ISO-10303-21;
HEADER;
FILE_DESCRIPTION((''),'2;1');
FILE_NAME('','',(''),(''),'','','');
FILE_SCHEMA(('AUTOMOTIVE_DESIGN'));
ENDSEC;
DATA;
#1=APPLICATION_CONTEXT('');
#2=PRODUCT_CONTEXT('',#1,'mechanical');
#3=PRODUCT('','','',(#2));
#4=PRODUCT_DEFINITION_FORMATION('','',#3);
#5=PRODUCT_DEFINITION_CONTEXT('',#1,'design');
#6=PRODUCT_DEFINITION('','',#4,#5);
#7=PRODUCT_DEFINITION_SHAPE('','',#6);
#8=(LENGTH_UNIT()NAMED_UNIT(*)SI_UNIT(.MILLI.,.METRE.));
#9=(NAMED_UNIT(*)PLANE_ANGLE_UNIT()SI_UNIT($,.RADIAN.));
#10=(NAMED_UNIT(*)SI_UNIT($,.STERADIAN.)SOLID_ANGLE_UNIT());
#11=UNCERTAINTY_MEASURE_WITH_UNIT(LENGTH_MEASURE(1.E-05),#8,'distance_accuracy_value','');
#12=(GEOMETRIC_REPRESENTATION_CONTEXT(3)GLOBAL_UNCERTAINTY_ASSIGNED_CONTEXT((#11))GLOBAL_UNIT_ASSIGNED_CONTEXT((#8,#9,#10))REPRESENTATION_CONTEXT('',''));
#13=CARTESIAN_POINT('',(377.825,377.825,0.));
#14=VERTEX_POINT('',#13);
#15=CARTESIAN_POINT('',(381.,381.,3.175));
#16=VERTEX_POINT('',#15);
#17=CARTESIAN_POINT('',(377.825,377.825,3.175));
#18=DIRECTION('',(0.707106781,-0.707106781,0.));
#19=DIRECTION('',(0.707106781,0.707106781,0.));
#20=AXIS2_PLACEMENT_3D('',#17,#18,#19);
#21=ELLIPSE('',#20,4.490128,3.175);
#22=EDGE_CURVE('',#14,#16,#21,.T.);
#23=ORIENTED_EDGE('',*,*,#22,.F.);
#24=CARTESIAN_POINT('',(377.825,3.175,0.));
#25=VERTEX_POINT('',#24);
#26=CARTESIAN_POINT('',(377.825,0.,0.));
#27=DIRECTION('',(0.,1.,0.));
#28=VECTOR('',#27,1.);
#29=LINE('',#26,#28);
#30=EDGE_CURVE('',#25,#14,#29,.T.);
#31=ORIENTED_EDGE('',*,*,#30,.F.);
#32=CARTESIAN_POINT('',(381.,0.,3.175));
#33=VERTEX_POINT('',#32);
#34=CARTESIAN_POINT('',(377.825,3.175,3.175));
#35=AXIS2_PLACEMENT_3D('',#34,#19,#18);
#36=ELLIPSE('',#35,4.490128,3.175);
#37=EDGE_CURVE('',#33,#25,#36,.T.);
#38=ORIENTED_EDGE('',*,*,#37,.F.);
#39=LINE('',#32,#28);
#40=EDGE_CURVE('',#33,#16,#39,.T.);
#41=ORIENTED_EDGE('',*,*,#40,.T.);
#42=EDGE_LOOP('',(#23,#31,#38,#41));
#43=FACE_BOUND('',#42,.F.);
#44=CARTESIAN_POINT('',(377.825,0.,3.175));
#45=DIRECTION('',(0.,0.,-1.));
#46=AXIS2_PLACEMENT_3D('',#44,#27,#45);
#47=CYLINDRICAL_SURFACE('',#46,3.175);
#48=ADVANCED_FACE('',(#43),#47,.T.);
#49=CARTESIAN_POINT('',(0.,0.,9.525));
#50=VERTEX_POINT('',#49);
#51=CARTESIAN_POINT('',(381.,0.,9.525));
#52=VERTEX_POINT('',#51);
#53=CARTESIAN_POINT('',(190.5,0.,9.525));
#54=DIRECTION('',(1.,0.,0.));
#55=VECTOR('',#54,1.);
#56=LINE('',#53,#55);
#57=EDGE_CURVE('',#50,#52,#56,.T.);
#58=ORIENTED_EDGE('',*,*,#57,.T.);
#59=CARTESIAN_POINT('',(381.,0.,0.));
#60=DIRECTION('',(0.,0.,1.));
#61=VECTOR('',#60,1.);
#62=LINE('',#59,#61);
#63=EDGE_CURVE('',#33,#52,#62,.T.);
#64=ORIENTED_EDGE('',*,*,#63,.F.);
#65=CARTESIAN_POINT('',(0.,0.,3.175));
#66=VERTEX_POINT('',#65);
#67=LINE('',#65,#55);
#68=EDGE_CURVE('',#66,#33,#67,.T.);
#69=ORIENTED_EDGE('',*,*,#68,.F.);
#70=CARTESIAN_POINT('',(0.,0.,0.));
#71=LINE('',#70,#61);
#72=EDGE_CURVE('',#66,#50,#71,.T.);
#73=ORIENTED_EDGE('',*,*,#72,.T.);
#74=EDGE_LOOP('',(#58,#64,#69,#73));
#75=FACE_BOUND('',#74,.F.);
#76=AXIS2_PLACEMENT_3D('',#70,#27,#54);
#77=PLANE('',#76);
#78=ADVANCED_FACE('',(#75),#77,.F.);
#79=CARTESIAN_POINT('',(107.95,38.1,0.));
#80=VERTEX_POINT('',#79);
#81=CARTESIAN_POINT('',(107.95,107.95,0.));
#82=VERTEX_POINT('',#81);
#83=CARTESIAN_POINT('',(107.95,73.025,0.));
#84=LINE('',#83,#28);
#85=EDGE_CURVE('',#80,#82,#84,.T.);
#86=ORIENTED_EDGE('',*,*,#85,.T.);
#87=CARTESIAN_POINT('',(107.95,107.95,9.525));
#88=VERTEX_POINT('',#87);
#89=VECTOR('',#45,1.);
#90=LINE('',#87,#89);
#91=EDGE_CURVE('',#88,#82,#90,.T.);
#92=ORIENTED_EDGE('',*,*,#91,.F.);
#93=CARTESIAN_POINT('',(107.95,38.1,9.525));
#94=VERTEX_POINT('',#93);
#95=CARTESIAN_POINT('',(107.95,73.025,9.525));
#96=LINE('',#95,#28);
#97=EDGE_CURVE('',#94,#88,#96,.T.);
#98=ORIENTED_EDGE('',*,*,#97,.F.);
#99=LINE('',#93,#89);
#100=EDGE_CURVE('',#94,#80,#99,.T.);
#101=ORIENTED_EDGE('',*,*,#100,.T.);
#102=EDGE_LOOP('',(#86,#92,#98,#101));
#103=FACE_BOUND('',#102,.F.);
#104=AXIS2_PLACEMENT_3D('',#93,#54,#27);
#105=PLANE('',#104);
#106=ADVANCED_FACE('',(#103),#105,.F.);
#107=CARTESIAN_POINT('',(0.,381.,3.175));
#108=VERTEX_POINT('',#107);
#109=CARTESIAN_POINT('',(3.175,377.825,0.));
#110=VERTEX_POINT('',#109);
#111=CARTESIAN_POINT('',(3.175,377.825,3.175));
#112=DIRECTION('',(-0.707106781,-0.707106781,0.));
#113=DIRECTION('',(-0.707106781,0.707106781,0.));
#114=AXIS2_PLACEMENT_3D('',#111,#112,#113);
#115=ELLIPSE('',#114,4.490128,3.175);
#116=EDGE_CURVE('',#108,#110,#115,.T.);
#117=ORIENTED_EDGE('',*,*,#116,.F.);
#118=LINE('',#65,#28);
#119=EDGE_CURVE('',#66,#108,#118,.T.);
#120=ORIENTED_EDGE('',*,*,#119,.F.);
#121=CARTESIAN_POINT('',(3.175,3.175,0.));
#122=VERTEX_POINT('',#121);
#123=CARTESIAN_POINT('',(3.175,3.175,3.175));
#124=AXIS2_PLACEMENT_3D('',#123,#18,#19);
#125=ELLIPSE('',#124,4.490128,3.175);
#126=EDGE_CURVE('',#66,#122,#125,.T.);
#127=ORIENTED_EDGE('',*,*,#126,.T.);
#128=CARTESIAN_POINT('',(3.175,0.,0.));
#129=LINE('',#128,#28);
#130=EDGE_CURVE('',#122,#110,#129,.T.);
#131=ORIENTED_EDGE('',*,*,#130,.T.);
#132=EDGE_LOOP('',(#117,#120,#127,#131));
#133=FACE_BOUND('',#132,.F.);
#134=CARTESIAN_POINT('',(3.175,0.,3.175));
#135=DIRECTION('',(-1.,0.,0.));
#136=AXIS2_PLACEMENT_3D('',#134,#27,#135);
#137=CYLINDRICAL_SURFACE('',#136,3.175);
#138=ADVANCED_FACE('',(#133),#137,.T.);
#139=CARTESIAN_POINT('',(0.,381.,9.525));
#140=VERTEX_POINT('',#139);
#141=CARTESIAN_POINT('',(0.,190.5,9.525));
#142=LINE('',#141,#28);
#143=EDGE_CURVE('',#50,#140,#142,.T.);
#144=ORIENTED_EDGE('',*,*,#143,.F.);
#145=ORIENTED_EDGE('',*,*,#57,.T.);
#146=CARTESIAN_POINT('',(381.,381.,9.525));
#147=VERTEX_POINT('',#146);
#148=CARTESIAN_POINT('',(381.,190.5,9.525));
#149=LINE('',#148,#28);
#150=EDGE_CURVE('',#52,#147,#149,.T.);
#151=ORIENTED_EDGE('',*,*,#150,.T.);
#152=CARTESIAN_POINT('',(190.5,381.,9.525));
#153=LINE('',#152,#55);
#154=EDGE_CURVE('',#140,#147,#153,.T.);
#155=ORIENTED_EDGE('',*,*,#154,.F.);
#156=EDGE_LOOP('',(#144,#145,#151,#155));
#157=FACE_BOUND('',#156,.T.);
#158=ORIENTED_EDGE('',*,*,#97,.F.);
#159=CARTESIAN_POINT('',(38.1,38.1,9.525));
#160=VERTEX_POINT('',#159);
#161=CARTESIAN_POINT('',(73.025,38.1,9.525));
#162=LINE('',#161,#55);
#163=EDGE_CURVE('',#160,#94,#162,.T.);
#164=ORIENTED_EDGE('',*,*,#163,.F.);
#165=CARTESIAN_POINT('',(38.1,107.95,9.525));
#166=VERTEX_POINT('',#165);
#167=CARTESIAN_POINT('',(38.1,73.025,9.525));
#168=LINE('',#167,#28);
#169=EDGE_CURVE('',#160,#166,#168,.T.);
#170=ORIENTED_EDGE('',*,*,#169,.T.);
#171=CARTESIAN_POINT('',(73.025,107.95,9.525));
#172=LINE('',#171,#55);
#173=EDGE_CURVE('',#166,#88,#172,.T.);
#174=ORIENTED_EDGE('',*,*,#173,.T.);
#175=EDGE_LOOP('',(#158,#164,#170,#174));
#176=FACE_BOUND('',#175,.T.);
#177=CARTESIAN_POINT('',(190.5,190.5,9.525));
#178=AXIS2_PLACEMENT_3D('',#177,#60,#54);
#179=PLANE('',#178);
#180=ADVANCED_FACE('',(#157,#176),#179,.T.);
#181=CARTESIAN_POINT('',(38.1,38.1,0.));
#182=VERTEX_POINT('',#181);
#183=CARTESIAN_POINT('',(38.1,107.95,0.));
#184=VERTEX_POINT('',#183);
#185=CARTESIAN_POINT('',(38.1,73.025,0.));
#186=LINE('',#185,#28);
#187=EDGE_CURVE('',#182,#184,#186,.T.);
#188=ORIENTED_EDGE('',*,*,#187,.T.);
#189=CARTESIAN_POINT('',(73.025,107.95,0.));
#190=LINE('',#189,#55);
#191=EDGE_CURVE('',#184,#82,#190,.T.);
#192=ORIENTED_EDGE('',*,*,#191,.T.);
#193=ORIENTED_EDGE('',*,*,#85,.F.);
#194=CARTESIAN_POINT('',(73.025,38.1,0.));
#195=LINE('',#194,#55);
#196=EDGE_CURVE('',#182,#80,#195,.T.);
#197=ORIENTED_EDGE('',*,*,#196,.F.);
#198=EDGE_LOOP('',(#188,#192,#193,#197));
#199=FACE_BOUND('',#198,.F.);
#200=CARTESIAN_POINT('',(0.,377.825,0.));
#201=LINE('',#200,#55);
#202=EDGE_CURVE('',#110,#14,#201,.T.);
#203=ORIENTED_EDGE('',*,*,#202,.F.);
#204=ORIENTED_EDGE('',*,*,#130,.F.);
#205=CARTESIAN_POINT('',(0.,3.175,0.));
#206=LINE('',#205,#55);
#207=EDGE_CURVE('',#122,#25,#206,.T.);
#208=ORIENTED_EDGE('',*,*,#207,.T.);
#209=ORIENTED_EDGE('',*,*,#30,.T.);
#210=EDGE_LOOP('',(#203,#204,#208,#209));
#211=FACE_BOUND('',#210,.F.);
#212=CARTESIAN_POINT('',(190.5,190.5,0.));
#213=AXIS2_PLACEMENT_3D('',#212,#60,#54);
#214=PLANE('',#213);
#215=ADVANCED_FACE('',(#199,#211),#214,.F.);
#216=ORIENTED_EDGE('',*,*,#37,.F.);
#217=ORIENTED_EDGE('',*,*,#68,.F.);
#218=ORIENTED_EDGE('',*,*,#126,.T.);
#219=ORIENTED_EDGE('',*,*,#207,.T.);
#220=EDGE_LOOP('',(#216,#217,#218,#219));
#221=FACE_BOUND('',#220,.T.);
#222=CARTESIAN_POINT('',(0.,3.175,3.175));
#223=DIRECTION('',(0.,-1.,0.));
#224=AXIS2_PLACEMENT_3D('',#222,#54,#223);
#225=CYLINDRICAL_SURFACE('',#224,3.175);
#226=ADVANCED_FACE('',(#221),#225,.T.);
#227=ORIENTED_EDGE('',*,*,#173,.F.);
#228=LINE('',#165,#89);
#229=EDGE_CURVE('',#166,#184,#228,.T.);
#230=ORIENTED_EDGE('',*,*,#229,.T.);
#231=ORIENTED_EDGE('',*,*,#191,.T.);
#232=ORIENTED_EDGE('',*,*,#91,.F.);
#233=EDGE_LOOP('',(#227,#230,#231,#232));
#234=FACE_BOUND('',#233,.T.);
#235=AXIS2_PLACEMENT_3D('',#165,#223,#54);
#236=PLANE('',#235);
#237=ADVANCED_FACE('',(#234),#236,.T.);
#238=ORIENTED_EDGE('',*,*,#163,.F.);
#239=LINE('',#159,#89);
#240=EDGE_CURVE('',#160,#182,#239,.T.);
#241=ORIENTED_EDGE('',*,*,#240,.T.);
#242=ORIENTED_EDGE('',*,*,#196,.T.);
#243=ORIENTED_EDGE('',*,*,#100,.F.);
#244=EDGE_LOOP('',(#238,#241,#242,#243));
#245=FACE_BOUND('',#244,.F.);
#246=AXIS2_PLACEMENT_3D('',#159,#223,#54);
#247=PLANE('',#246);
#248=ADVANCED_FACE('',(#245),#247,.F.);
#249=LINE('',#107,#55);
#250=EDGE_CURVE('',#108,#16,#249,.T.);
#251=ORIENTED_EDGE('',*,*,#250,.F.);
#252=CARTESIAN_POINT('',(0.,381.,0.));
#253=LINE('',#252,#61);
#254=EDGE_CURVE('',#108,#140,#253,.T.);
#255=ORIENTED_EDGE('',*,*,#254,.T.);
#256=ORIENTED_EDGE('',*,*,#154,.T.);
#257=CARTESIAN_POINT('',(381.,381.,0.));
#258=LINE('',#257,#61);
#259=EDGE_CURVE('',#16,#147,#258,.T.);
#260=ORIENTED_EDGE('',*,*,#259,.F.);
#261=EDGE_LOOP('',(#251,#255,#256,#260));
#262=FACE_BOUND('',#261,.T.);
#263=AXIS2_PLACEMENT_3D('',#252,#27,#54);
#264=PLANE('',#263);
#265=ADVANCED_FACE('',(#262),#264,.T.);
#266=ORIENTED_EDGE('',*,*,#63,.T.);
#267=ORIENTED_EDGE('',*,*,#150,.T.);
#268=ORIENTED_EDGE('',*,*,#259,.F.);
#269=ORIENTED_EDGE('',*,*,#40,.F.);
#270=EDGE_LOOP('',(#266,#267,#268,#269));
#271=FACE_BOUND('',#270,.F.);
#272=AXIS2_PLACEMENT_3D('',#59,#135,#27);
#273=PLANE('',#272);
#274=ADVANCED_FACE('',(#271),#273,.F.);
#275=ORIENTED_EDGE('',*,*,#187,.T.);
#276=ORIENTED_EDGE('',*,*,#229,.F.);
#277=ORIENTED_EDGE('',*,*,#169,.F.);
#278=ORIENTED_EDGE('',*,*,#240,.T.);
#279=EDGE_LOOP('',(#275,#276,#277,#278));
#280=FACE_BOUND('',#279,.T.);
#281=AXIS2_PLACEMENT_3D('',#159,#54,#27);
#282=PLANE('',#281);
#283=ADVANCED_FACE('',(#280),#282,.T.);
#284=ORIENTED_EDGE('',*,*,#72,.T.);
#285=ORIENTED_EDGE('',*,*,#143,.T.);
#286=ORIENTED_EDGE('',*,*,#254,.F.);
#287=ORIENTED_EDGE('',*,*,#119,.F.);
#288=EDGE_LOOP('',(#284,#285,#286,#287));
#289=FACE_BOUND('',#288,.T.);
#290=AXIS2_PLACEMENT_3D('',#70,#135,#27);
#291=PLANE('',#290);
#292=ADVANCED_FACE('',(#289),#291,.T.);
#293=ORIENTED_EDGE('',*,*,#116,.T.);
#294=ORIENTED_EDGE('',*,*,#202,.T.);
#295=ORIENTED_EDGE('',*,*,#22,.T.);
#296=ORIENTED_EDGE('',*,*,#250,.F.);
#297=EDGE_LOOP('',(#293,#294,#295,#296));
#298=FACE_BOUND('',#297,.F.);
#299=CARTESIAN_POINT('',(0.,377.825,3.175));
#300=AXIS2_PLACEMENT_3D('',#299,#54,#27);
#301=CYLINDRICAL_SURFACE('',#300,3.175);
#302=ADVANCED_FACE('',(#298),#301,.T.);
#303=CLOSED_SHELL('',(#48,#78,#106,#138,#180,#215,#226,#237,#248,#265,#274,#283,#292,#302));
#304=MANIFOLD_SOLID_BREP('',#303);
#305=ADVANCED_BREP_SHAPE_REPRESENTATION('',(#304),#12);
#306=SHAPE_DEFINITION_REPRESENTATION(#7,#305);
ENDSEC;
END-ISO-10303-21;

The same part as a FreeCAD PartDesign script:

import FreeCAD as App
import Part
import Sketcher
Q = App.Units.Quantity


def edges_at(feature, points):
    """Names of the edges that pass closest to the given points."""
    edges = feature.Shape.Edges
    near = lambda p: min(range(len(edges)), key=lambda i: edges[i].distToShape(Part.Vertex(*p))[0])
    return sorted({f"Edge{near(p) + 1}" for p in points})


def add_polygon(sketch, points):
    """Adds a closed chain of lines whose ends are joined by coincident constraints."""
    first, n = sketch.GeometryCount, len(points)
    for a, b in zip(points, points[1:] + points[:1]):
        sketch.addGeometry(Part.LineSegment(App.Vector(*a, 0), App.Vector(*b, 0)), False)
    for i in range(n):
        sketch.addConstraint(Sketcher.Constraint("Coincident", first + i, 2, first + (i + 1) % n, 1))

doc = App.newDocument("Part")
body = doc.addObject("PartDesign::Body", "Body")

# Sketch on XY plane
sketch1 = body.newObject("Sketcher::SketchObject", "Sketch")
sketch1.AttachmentSupport = (doc.getObject("XY_Plane"), [""])
sketch1.MapMode = "FlatFace"
add_polygon(sketch1, [(0, 381), (0, 0), (381, 0), (381, 381)])  # lines 0-3
sketch1.addConstraint([
    Sketcher.Constraint("Vertical", 0),
    Sketcher.Constraint("Horizontal", 1),
    Sketcher.Constraint("Vertical", 2),
    Sketcher.Constraint("Horizontal", 3),
    Sketcher.Constraint("Coincident", 0, 2, -1, 1),
    Sketcher.Constraint("Equal", 3, 0),
    Sketcher.Constraint("DistanceX", 1, 1, 1, 2, Q("15 in")),
])
pad1 = body.newObject("PartDesign::Pad", "Pad")
pad1.Profile = sketch1
pad1.Length = Q("0.375 in")

# Sketch on XY plane
sketch2 = body.newObject("Sketcher::SketchObject", "Sketch001")
sketch2.AttachmentSupport = (doc.getObject("XY_Plane"), [""])
sketch2.MapMode = "FlatFace"
sketch2.AttachmentOffset = App.Placement(App.Vector(0, 0, 0.375 * 25.4), App.Rotation())
add_polygon(sketch2, [(38.1, 107.95), (38.1, 38.1), (107.95, 38.1), (107.95, 107.95)])  # lines 0-3
sketch2.addConstraint([
    Sketcher.Constraint("Vertical", 0),
    Sketcher.Constraint("Horizontal", 1),
    Sketcher.Constraint("Vertical", 2),
    Sketcher.Constraint("Horizontal", 3),
    Sketcher.Constraint("Equal", 3, 0),
    Sketcher.Constraint("DistanceX", 1, 1, 1, 2, Q("2.75 in")),
    Sketcher.Constraint("DistanceX", -1, 1, 0, 2, Q("1.5 in")),
    Sketcher.Constraint("DistanceY", -1, 1, 0, 2, Q("1.5 in")),
])
pocket1 = body.newObject("PartDesign::Pocket", "Pocket")
pocket1.Profile = sketch2
pocket1.Type = "ThroughAll"
doc.recompute()

fillet = body.newObject("PartDesign::Fillet", "Fillet")
fillet.Base = (pocket1, edges_at(pocket1, [
    (0, 190.5, 0),
    (190.5, 0, 0),
    (381, 190.5, 0),
    (190.5, 381, 0),
]))
fillet.Radius = Q("0.125 in")

doc.recompute()
